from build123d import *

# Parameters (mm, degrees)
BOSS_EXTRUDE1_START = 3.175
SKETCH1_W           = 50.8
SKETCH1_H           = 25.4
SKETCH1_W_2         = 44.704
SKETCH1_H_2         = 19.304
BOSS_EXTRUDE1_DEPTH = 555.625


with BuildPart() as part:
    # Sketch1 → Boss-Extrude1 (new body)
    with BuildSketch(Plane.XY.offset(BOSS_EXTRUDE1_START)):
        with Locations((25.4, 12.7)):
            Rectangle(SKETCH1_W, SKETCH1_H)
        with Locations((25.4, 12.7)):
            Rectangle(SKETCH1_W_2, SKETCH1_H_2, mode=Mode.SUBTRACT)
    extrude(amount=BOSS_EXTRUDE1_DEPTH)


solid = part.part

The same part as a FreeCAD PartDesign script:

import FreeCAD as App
import Part
import Sketcher
from FreeCAD import Vector
Q = App.Units.Quantity


def add_polygon(sketch, points):
    """Adds a closed chain of lines whose ends are joined by coincident constraints."""
    first, n = sketch.GeometryCount, len(points)
    for a, b in zip(points, points[1:] + points[:1]):
        sketch.addGeometry(Part.LineSegment(App.Vector(*a, 0), App.Vector(*b, 0)), False)
    for i in range(n):
        sketch.addConstraint(Sketcher.Constraint("Coincident", first + i, 2, first + (i + 1) % n, 1))

doc = App.newDocument("Part")
body = doc.addObject("PartDesign::Body", "Body")

sketch1 = body.newObject("Sketcher::SketchObject", "Sketch")
sketch1.AttachmentSupport = (doc.getObject("XY_Plane"), [""])
sketch1.MapMode = "FlatFace"
sketch1.AttachmentOffset = App.Placement(Vector(0, 0, 0.125 * 25.4), App.Rotation())
add_polygon(sketch1, [(0, 25.4), (0, 0), (50.8, 0), (50.8, 25.4)])
add_polygon(sketch1, [(47.752, 3.048), (3.048, 3.048), (3.048, 22.352), (47.752, 22.352)])
sketch1.addConstraint(Sketcher.Constraint("Vertical", 0))
sketch1.addConstraint(Sketcher.Constraint("Horizontal", 1))
sketch1.addConstraint(Sketcher.Constraint("Vertical", 2))
sketch1.addConstraint(Sketcher.Constraint("Horizontal", 3))
sketch1.addConstraint(Sketcher.Constraint("Horizontal", 4))
sketch1.addConstraint(Sketcher.Constraint("Vertical", 5))
sketch1.addConstraint(Sketcher.Constraint("Horizontal", 6))
sketch1.addConstraint(Sketcher.Constraint("Vertical", 7))
sketch1.addConstraint(Sketcher.Constraint("Coincident", 0, 2, -1, 1))
sketch1.addConstraint(Sketcher.Constraint("DistanceX", 1, 1, 1, 2, Q("2 in")))
sketch1.addConstraint(Sketcher.Constraint("DistanceY", 0, 2, 0, 1, Q("1 in")))
sketch1.addConstraint(Sketcher.Constraint("DistanceX", 4, 2, 4, 1, Q("1.76 in")))
sketch1.addConstraint(Sketcher.Constraint("DistanceY", 5, 1, 5, 2, Q("0.76 in")))
sketch1.addConstraint(Sketcher.Constraint("DistanceX", -1, 1, 4, 2, Q("0.12 in")))
sketch1.addConstraint(Sketcher.Constraint("DistanceY", -1, 1, 4, 2, Q("0.12 in")))
pad1 = body.newObject("PartDesign::Pad", "Pad")
pad1.Profile = sketch1
pad1.Length = Q("21.875 in")

doc.recompute()
